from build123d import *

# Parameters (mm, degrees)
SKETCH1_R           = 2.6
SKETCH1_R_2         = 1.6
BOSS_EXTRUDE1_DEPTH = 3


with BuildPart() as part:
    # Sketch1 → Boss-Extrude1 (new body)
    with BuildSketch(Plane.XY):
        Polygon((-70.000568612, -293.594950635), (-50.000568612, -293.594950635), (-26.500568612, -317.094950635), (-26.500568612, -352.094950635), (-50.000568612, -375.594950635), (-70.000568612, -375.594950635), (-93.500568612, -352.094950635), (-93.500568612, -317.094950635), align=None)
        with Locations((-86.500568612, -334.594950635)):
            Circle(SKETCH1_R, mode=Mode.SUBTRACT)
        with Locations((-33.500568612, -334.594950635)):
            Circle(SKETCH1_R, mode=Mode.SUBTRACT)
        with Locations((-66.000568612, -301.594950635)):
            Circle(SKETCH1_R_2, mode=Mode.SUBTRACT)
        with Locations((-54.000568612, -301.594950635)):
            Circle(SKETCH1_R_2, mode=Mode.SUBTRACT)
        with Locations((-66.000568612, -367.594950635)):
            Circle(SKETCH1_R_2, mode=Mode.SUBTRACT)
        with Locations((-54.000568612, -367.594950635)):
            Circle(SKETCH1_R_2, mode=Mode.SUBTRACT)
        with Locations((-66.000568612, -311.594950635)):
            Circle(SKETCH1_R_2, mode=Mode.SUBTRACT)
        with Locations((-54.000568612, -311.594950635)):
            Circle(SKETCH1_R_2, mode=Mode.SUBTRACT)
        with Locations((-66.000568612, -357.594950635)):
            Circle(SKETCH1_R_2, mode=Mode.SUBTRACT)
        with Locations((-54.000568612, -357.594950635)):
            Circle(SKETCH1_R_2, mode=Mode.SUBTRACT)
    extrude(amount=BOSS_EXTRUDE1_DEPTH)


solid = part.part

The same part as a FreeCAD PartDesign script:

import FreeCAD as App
import Part
import Sketcher

V = App.Vector
Q = App.Units.Quantity

doc = App.newDocument("Part")
body = doc.addObject("PartDesign::Body", "Body")

# Sketch on XY plane
sketch1 = body.newObject("Sketcher::SketchObject", "Sketch")
sketch1.AttachmentSupport = (doc.getObject("XY_Plane"), [""])
sketch1.MapMode = "FlatFace"
sketch1.addGeometry(Part.LineSegment(V(-50, -293.6, 0), V(-70, -293.6, 0)), False)
sketch1.addGeometry(Part.LineSegment(V(-70, -293.6, 0), V(-93.5, -317.1, 0)), False)
sketch1.addGeometry(Part.LineSegment(V(-93.5, -317.1, 0), V(-93.5, -352.1, 0)), False)
sketch1.addGeometry(Part.LineSegment(V(-93.5, -352.1, 0), V(-70, -375.6, 0)), False)
sketch1.addGeometry(Part.LineSegment(V(-70, -375.6, 0), V(-50, -375.6, 0)), False)
sketch1.addGeometry(Part.LineSegment(V(-50, -375.6, 0), V(-26.5, -352.1, 0)), False)
sketch1.addGeometry(Part.LineSegment(V(-26.5, -352.1, 0), V(-26.5, -317.1, 0)), False)
sketch1.addGeometry(Part.LineSegment(V(-26.5, -317.1, 0), V(-50, -293.6, 0)), False)
sketch1.addGeometry(Part.Circle(V(-54, -367.6, 0), V(0, 0, 1), 1.6), False)
sketch1.addGeometry(Part.Circle(V(-54, -357.6, 0), V(0, 0, 1), 1.6), False)
sketch1.addGeometry(Part.Circle(V(-66, -367.6, 0), V(0, 0, 1), 1.6), False)
sketch1.addGeometry(Part.Circle(V(-66, -357.6, 0), V(0, 0, 1), 1.6), False)
sketch1.addGeometry(Part.Circle(V(-33.5, -334.6, 0), V(0, 0, 1), 2.6), False)
sketch1.addGeometry(Part.Circle(V(-54, -311.6, 0), V(0, 0, 1), 1.6), False)
sketch1.addGeometry(Part.Circle(V(-54, -301.6, 0), V(0, 0, 1), 1.6), False)
sketch1.addGeometry(Part.Circle(V(-86.5, -334.6, 0), V(0, 0, 1), 2.6), False)
sketch1.addGeometry(Part.Circle(V(-66, -311.6, 0), V(0, 0, 1), 1.6), False)
sketch1.addGeometry(Part.Circle(V(-66, -301.6, 0), V(0, 0, 1), 1.6), False)
sketch1.addConstraint(Sketcher.Constraint("Coincident", 0, 2, 1, 1))
sketch1.addConstraint(Sketcher.Constraint("Coincident", 1, 2, 2, 1))
sketch1.addConstraint(Sketcher.Constraint("Coincident", 2, 2, 3, 1))
sketch1.addConstraint(Sketcher.Constraint("Coincident", 3, 2, 4, 1))
sketch1.addConstraint(Sketcher.Constraint("Coincident", 4, 2, 5, 1))
sketch1.addConstraint(Sketcher.Constraint("Coincident", 5, 2, 6, 1))
sketch1.addConstraint(Sketcher.Constraint("Coincident", 6, 2, 7, 1))
sketch1.addConstraint(Sketcher.Constraint("Coincident", 7, 2, 0, 1))
sketch1.addConstraint(Sketcher.Constraint("Horizontal", 0))
sketch1.addConstraint(Sketcher.Constraint("Vertical", 2))
sketch1.addConstraint(Sketcher.Constraint("Horizontal", 4))
sketch1.addConstraint(Sketcher.Constraint("Vertical", 6))
sketch1.addConstraint(Sketcher.Constraint("Equal", 8, 9))
sketch1.addConstraint(Sketcher.Constraint("Equal", 9, 10))
sketch1.addConstraint(Sketcher.Constraint("Equal", 10, 11))
sketch1.addConstraint(Sketcher.Constraint("Equal", 11, 13))
sketch1.addConstraint(Sketcher.Constraint("Equal", 13, 14))
sketch1.addConstraint(Sketcher.Constraint("Equal", 12, 15))
sketch1.addConstraint(Sketcher.Constraint("Equal", 14, 16))
sketch1.addConstraint(Sketcher.Constraint("Equal", 16, 17))
sketch1.addConstraint(Sketcher.Constraint("Perpendicular", 1, 3))
sketch1.addConstraint(Sketcher.Constraint("Perpendicular", 3, 5))
sketch1.addConstraint(Sketcher.Constraint("Perpendicular", 5, 7))
sketch1.addConstraint(Sketcher.Constraint("Horizontal", 8, 3, 10, 3))
sketch1.addConstraint(Sketcher.Constraint("Horizontal", 9, 3, 11, 3))
sketch1.addConstraint(Sketcher.Constraint("Horizontal", 12, 3, 15, 3))
sketch1.addConstraint(Sketcher.Constraint("Horizontal", 13, 3, 16, 3))
sketch1.addConstraint(Sketcher.Constraint("Horizontal", 14, 3, 17, 3))
sketch1.addConstraint(Sketcher.Constraint("Horizontal", 2, 2, 5, 2))
sketch1.addConstraint(Sketcher.Constraint("Horizontal", 1, 2, 6, 2))
sketch1.addConstraint(Sketcher.Constraint("Vertical", 8, 3, 9, 3))
sketch1.addConstraint(Sketcher.Constraint("Vertical", 10, 3, 11, 3))
sketch1.addConstraint(Sketcher.Constraint("Vertical", 9, 3, 13, 3))
sketch1.addConstraint(Sketcher.Constraint("Vertical", 13, 3, 14, 3))
sketch1.addConstraint(Sketcher.Constraint("Vertical", 11, 3, 16, 3))
sketch1.addConstraint(Sketcher.Constraint("Vertical", 16, 3, 17, 3))
sketch1.addConstraint(Sketcher.Constraint("Vertical", 0, 2, 3, 2))
sketch1.addConstraint(Sketcher.Constraint("Vertical", 4, 2, 7, 2))
sketch1.addConstraint(Sketcher.Constraint("Diameter", 8, Q("3.2 mm")))
sketch1.addConstraint(Sketcher.Constraint("Diameter", 12, Q("5.2 mm")))
sketch1.addConstraint(Sketcher.Constraint("DistanceX", 0, 2, 0, 1, Q("20 mm")))
sketch1.addConstraint(Sketcher.Constraint("DistanceY", 2, 2, 2, 1, Q("35 mm")))
sketch1.addConstraint(Sketcher.Constraint("DistanceY", 8, 3, 9, 3, Q("10 mm")))
sketch1.addConstraint(Sketcher.Constraint("DistanceX", 10, 3, 8, 3, Q("12 mm")))
sketch1.addConstraint(Sketcher.Constraint("DistanceY", 9, 3, 12, 3, Q("23 mm")))
sketch1.addConstraint(Sketcher.Constraint("DistanceY", 12, 3, 13, 3, Q("23 mm")))
sketch1.addConstraint(Sketcher.Constraint("DistanceY", 13, 3, 14, 3, Q("10 mm")))
sketch1.addConstraint(Sketcher.Constraint("DistanceX", 0, 2, 17, 3, Q("4 mm")))
sketch1.addConstraint(Sketcher.Constraint("DistanceY", 17, 3, 0, 2, Q("8 mm")))
sketch1.addConstraint(Sketcher.Constraint("DistanceX", 1, 2, 15, 3, Q("7 mm")))
sketch1.addConstraint(Sketcher.Constraint("DistanceY", 3, 2, 10, 3, Q("8 mm")))
sketch1.addConstraint(Sketcher.Constraint("DistanceX", 12, 3, 5, 2, Q("7 mm")))
sketch1.addConstraint(Sketcher.Constraint("DistanceX", 8, 3, -1, 1, Q("54.000569 mm")))
sketch1.addConstraint(Sketcher.Constraint("DistanceY", 8, 3, -1, 1, Q("367.594951 mm")))
pad1 = body.newObject("PartDesign::Pad", "Pad")
pad1.Profile = sketch1
pad1.Length = 3

doc.recompute()
